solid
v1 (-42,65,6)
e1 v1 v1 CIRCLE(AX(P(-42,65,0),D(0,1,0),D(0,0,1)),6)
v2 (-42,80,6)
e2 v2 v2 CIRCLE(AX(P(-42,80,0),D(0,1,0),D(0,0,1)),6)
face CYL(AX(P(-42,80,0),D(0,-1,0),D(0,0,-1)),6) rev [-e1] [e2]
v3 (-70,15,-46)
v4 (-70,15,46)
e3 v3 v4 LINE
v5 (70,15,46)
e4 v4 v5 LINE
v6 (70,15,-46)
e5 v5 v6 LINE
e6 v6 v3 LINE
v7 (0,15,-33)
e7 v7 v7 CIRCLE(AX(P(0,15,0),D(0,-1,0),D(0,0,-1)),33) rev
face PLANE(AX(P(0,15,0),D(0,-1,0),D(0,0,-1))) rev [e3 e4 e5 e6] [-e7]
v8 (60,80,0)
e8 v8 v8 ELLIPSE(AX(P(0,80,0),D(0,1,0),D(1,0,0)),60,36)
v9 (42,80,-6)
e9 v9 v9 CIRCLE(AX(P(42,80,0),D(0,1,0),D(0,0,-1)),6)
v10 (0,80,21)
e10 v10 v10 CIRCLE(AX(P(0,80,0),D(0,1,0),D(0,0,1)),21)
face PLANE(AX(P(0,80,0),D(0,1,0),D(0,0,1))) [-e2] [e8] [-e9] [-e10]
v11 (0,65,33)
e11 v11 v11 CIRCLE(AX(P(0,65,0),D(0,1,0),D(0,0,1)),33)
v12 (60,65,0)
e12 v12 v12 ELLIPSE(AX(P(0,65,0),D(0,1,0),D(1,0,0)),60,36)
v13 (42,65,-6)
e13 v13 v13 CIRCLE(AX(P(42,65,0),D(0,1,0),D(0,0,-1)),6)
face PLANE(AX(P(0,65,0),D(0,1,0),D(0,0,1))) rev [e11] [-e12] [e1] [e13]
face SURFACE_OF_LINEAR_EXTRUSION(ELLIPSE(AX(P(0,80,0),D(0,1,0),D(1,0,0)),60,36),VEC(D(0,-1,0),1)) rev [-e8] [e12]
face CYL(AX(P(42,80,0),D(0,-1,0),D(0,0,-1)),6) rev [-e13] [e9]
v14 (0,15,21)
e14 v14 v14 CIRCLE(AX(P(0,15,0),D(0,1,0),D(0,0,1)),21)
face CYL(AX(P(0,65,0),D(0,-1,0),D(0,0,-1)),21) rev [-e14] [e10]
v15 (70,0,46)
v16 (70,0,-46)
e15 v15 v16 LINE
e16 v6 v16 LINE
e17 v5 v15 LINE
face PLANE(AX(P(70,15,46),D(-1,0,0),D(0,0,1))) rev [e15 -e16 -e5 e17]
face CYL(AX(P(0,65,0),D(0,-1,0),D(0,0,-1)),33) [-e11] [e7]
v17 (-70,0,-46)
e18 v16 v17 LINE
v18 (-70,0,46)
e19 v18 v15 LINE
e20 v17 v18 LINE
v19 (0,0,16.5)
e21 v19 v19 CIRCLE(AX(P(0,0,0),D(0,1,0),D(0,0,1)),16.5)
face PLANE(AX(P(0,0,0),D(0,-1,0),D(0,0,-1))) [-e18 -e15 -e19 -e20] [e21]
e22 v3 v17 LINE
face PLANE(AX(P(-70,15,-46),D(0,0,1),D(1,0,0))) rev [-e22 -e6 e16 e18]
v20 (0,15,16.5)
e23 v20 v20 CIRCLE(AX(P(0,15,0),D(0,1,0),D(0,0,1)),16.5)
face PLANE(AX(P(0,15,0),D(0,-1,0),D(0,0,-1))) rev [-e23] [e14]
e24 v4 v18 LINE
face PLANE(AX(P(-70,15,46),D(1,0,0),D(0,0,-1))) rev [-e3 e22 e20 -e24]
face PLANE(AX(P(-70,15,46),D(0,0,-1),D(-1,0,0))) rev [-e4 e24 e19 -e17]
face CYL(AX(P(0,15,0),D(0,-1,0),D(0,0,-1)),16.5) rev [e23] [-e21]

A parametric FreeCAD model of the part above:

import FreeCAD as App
import Part
import Sketcher
Q = App.Units.Quantity

doc = App.newDocument("Part")
body = doc.addObject("PartDesign::Body", "Body")

sketch1 = doc.addObject("Sketcher::SketchObject", "Sketch")
body.addObject(sketch1)
sketch1.AttachmentSupport = (doc.XZ_Plane, [""])
sketch1.MapMode = "FlatFace"
sketch1.addGeometry([
    Part.LineSegment(App.Vector(-70, -46, 0), App.Vector(-70, 46, 0)),
    Part.LineSegment(App.Vector(-70, 46, 0), App.Vector(70, 46, 0)),
    Part.LineSegment(App.Vector(70, 46, 0), App.Vector(70, -46, 0)),
    Part.LineSegment(App.Vector(70, -46, 0), App.Vector(-70, -46, 0)),
    Part.Circle(App.Vector(0, 0, 0), App.Vector(0, 0, 1), 16),
], False)
sketch1.addConstraint([
    Sketcher.Constraint("Coincident", 0, 2, 1, 1),
    Sketcher.Constraint("Coincident", 1, 2, 2, 1),
    Sketcher.Constraint("Coincident", 2, 2, 3, 1),
    Sketcher.Constraint("Coincident", 3, 2, 0, 1),
    Sketcher.Constraint("Vertical", 0),
    Sketcher.Constraint("Horizontal", 1),
    Sketcher.Constraint("Vertical", 2),
    Sketcher.Constraint("Horizontal", 3),
    Sketcher.Constraint("Coincident", 4, 3, -1, 1),
    Sketcher.Constraint("Symmetric", 0, 2, 2, 2, -1, 1),
    Sketcher.Constraint("Diameter", 4, Q("33 mm")),
    Sketcher.Constraint("DistanceX", 1, 1, 1, 2, Q("140 mm")),
    Sketcher.Constraint("DistanceY", 0, 1, 0, 2, Q("92 mm")),
])
pad1 = doc.addObject("PartDesign::Pad", "Pad")
body.addObject(pad1)
pad1.Profile = sketch1
pad1.Length = 15
pad1.Reversed = True

sketch2 = doc.addObject("Sketcher::SketchObject", "Sketch001")
body.addObject(sketch2)
sketch2.AttachmentSupport = (doc.XZ_Plane, [""])
sketch2.MapMode = "FlatFace"
sketch2.AttachmentOffset = App.Placement(App.Vector(0, 0, -15), App.Rotation())
sketch2.addGeometry([
    Part.Circle(App.Vector(0, 0, 0), App.Vector(0, 0, 1), 33),
    Part.Circle(App.Vector(0, 0, 0), App.Vector(0, 0, 1), 21),
], False)
sketch2.addConstraint([
    Sketcher.Constraint("Coincident", 0, 3, -1, 1),
    Sketcher.Constraint("Coincident", 1, 3, -1, 1),
    Sketcher.Constraint("Diameter", 0, Q("66 mm")),
    Sketcher.Constraint("Diameter", 1, Q("42 mm")),
])
pad2 = doc.addObject("PartDesign::Pad", "Pad001")
body.addObject(pad2)
pad2.Profile = sketch2
pad2.Length = 50
pad2.Reversed = True

sketch3 = doc.addObject("Sketcher::SketchObject", "Sketch002")
body.addObject(sketch3)
sketch3.AttachmentSupport = (doc.XZ_Plane, [""])
sketch3.MapMode = "FlatFace"
sketch3.AttachmentOffset = App.Placement(App.Vector(0, 0, -65), App.Rotation())
sketch3.addGeometry([
    Part.Ellipse(App.Vector(60, 0, 0), App.Vector(0, 36, 0), App.Vector(0, 0, 0)),
    Part.Circle(App.Vector(-42, 0, 0), App.Vector(0, 0, 1), 6),
    Part.Circle(App.Vector(0, 0, 0), App.Vector(0, 0, 1), 21),
    Part.Circle(App.Vector(42, 0, 0), App.Vector(0, 0, 1), 6),
], False)
sketch3.addConstraint([
    Sketcher.Constraint("Block", 0),
    Sketcher.Constraint("Coincident", 2, 3, -1, 1),
    Sketcher.Constraint("Equal", 1, 3),
    Sketcher.Constraint("Symmetric", 1, 3, 3, 3, -1, 1),
    Sketcher.Constraint("PointOnObject", 1, 3, -1),
    Sketcher.Constraint("Diameter", 1, Q("12 mm")),
    Sketcher.Constraint("Diameter", 2, Q("42 mm")),
    Sketcher.Constraint("DistanceX", 1, 3, -1, 1, Q("42 mm")),
])
pad3 = doc.addObject("PartDesign::Pad", "Pad002")
body.addObject(pad3)
pad3.Profile = sketch3
pad3.Length = 15
pad3.Reversed = True

doc.recompute()
